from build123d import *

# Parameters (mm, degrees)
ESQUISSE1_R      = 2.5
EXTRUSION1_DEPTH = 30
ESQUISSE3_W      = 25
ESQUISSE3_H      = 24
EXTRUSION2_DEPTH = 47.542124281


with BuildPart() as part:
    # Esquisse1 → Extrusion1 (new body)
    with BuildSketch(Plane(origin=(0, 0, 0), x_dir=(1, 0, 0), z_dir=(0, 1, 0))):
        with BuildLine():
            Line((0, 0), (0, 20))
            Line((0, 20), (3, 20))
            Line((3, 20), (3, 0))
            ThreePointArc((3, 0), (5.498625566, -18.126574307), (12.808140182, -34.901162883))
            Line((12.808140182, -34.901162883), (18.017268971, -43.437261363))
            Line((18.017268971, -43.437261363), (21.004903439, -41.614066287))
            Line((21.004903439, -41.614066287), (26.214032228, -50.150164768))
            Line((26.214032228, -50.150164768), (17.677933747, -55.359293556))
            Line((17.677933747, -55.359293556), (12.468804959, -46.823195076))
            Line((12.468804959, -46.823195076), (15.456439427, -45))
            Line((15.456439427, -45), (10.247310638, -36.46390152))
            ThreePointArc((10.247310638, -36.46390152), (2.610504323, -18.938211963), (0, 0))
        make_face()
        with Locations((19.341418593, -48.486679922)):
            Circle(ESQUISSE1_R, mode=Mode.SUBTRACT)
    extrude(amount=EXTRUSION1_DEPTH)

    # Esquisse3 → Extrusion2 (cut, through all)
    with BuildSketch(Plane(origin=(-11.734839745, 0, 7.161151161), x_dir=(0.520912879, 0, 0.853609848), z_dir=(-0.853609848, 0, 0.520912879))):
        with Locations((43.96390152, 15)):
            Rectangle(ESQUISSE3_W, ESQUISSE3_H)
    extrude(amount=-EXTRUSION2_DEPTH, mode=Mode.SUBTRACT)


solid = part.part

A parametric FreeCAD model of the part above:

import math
import FreeCAD as App
import Part
import Sketcher

V = App.Vector


def add_polygon(sketch, points):
    """Adds a closed chain of lines whose ends are joined by coincident constraints."""
    first, n = sketch.GeometryCount, len(points)
    for a, b in zip(points, points[1:] + points[:1]):
        sketch.addGeometry(Part.LineSegment(App.Vector(*a, 0), App.Vector(*b, 0)), False)
    for i in range(n):
        sketch.addConstraint(Sketcher.Constraint("Coincident", first + i, 2, first + (i + 1) % n, 1))

doc = App.newDocument("Part")
body = doc.addObject("PartDesign::Body", "Body")

# Sketch on XZ plane
sketch1 = doc.addObject("Sketcher::SketchObject", "Sketch")
body.addObject(sketch1)
sketch1.AttachmentSupport = (doc.XZ_Plane, [""])
sketch1.MapMode = "FlatFace"
sketch1.addGeometry([
    Part.LineSegment(V(0, -20, 0), V(0, 0, 0)),  # 0
    Part.ArcOfCircle(Part.Circle(V(70, 0, 0), V(0, 0, 1), 70), math.radians(148.606494), math.radians(180)),  # 1
    Part.LineSegment(V(10.247311, 36.463902, 0), V(15.456439, 45, 0)),  # 2
    Part.LineSegment(V(15.456439, 45, 0), V(12.468805, 46.823195, 0)),  # 3
    Part.LineSegment(V(12.468805, 46.823195, 0), V(17.677934, 55.359294, 0)),  # 4
    Part.LineSegment(V(17.677934, 55.359294, 0), V(26.214032, 50.150165, 0)),  # 5
    Part.LineSegment(V(26.214032, 50.150165, 0), V(21.004903, 41.614066, 0)),  # 6
    Part.LineSegment(V(21.004903, 41.614066, 0), V(18.017269, 43.437261, 0)),  # 7
    Part.LineSegment(V(18.017269, 43.437261, 0), V(12.80814, 34.901163, 0)),  # 8
    Part.ArcOfCircle(Part.Circle(V(70, 0, 0), V(0, 0, 1), 67), math.radians(148.606494), math.radians(180)),  # 9
    Part.LineSegment(V(3, 0, 0), V(3, -20, 0)),  # 10
    Part.LineSegment(V(3, -20, 0), V(0, -20, 0)),  # 11
    Part.Circle(V(19.341419, 48.48668, 0), V(0, 0, 1), 2.5),  # 12
], False)
sketch1.addConstraint([
    Sketcher.Constraint("Tangent", 0, 2, 1, 2),
    Sketcher.Constraint("Tangent", 1, 1, 2, 1),
    Sketcher.Constraint("Coincident", 2, 2, 3, 1),
    Sketcher.Constraint("Coincident", 3, 2, 4, 1),
    Sketcher.Constraint("Coincident", 4, 2, 5, 1),
    Sketcher.Constraint("Coincident", 5, 2, 6, 1),
    Sketcher.Constraint("Coincident", 6, 2, 7, 1),
    Sketcher.Constraint("Coincident", 7, 2, 8, 1),
    Sketcher.Constraint("Tangent", 8, 2, 9, 1),
    Sketcher.Constraint("Tangent", 9, 2, 10, 1),
    Sketcher.Constraint("Coincident", 10, 2, 11, 1),
    Sketcher.Constraint("Coincident", 11, 2, 0, 1),
    Sketcher.Constraint("Vertical", 0),
    Sketcher.Constraint("Vertical", 10),
    Sketcher.Constraint("Horizontal", 11),
    Sketcher.Constraint("Coincident", 0, 2, -1, 1),
    Sketcher.Constraint("Coincident", 9, 3, 1, 3),
    Sketcher.Constraint("Perpendicular", 2, 3),
    Sketcher.Constraint("Perpendicular", 3, 4),
    Sketcher.Constraint("Perpendicular", 4, 5),
    Sketcher.Constraint("Perpendicular", 5, 6),
    Sketcher.Constraint("Perpendicular", 6, 7),
    Sketcher.Constraint("Perpendicular", 7, 8),
    Sketcher.Constraint("Equal", 2, 4),
    Sketcher.Constraint("Equal", 4, 5),
    Sketcher.Constraint("Equal", 5, 6),
    Sketcher.Constraint("Equal", 3, 7),
    Sketcher.Constraint("Diameter", 12, 5.0),
    Sketcher.Constraint("Radius", 1, 70.0),
    Sketcher.Constraint("Radius", 9, 67.0),
    Sketcher.Constraint("DistanceY", 0, 1, 0, 2, 20.0),
    Sketcher.Constraint("Distance", 2, 10.0),
    Sketcher.Constraint("DistanceY", -1, 1, 2, 2, 45.0),
    Sketcher.Constraint("DistanceX", -1, 1, 12, 3, 19.341419),
    Sketcher.Constraint("DistanceY", -1, 1, 12, 3, 48.48668),
])
pad1 = doc.addObject("PartDesign::Pad", "Pad")
body.addObject(pad1)
pad1.Profile = sketch1
pad1.Length = 30
pad1.Reversed = True

# Sketch on an angled plane
sketch2 = doc.addObject("Sketcher::SketchObject", "Sketch001")
body.addObject(sketch2)
sketch2.Placement = App.Placement(V(-11.73484, 0, 7.161151), App.Rotation(V(0.520912879, 0, 0.853609848), V(0, 1, 0), V(-0.853609848, 0, 0.520912879), "ZXY"))
add_polygon(sketch2, [(31.463902, 27), (31.463902, 3), (56.463902, 3), (56.463902, 27)])  # lines 0-3
sketch2.addConstraint([
    Sketcher.Constraint("Vertical", 0),
    Sketcher.Constraint("Horizontal", 1),
    Sketcher.Constraint("Vertical", 2),
    Sketcher.Constraint("Horizontal", 3),
    Sketcher.Constraint("DistanceX", 1, 1, 1, 2, 25.0),
    Sketcher.Constraint("DistanceY", 0, 2, 0, 1, 24.0),
    Sketcher.Constraint("DistanceY", -1, 1, 0, 2, 3.0),
    Sketcher.Constraint("DistanceX", -1, 1, 0, 2, 31.463902),
])
pocket1 = doc.addObject("PartDesign::Pocket", "Pocket")
body.addObject(pocket1)
pocket1.Profile = sketch2
pocket1.Type = "ThroughAll"

doc.recompute()
